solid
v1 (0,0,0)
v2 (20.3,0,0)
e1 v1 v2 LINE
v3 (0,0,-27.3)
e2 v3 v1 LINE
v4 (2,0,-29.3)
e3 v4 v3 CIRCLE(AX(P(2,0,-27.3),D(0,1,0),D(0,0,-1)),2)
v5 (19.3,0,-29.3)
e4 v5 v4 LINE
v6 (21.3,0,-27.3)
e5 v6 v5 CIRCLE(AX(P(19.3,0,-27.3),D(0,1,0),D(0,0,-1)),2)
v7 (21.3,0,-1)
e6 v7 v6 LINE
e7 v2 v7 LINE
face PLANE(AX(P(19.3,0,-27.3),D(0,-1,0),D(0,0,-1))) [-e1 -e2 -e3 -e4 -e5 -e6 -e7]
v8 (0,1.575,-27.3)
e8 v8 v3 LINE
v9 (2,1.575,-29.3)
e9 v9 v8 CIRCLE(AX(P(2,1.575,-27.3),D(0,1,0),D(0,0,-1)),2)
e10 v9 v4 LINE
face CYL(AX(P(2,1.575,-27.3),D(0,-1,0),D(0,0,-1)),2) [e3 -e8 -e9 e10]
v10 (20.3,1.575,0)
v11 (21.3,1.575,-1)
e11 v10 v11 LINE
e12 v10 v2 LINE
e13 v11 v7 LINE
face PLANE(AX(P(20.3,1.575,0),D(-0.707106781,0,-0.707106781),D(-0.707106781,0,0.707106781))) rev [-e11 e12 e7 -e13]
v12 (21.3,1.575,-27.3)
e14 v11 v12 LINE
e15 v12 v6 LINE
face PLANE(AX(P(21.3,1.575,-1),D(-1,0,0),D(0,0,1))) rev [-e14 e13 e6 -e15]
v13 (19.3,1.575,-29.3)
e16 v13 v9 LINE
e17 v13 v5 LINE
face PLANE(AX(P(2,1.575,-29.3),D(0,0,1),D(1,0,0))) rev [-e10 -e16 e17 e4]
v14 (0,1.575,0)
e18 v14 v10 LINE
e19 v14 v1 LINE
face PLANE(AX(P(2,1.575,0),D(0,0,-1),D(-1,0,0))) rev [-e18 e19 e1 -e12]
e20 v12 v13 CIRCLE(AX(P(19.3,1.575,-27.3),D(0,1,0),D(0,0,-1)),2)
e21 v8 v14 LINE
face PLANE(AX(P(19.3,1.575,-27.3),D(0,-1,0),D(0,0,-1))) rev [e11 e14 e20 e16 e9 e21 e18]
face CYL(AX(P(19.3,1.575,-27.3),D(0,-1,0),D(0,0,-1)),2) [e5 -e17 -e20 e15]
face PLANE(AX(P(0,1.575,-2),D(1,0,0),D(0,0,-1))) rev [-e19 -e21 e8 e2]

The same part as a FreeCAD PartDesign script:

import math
import FreeCAD as App
import Part
import Sketcher

V = App.Vector
Q = App.Units.Quantity

doc = App.newDocument("Part")
body = doc.addObject("PartDesign::Body", "Body")

# Sketch on XZ plane
sketch1 = body.newObject("Sketcher::SketchObject", "Sketch")
sketch1.AttachmentSupport = (doc.getObject("XZ_Plane"), [""])
sketch1.MapMode = "FlatFace"
sketch1.addGeometry([
    Part.LineSegment(V(0, 0, 0), V(20.3, 0, 0)),  # 0
    Part.LineSegment(V(20.3, 0, 0), V(21.3, -1, 0)),  # 1
    Part.LineSegment(V(21.3, -1, 0), V(21.3, -27.3, 0)),  # 2
    Part.ArcOfCircle(Part.Circle(V(19.3, -27.3, 0), V(0, 0, 1), 2), math.radians(-90), math.radians(0)),  # 3
    Part.LineSegment(V(19.3, -29.3, 0), V(2, -29.3, 0)),  # 4
    Part.ArcOfCircle(Part.Circle(V(2, -27.3, 0), V(0, 0, 1), 2), math.radians(-180), math.radians(-90)),  # 5
    Part.LineSegment(V(0, -27.3, 0), V(0, 0, 0)),  # 6
], False)
sketch1.addConstraint([
    Sketcher.Constraint("Coincident", 0, 2, 1, 1),
    Sketcher.Constraint("Coincident", 1, 2, 2, 1),
    Sketcher.Constraint("Tangent", 2, 2, 3, 2),
    Sketcher.Constraint("Tangent", 3, 1, 4, 1),
    Sketcher.Constraint("Tangent", 4, 2, 5, 2),
    Sketcher.Constraint("Tangent", 5, 1, 6, 1),
    Sketcher.Constraint("Coincident", 6, 2, 0, 1),
    Sketcher.Constraint("Horizontal", 0),
    Sketcher.Constraint("Vertical", 2),
    Sketcher.Constraint("Horizontal", 4),
    Sketcher.Constraint("Vertical", 6),
    Sketcher.Constraint("Coincident", 6, 2, -1, 1),
    Sketcher.Constraint("Equal", 3, 5),
    Sketcher.Constraint("Radius", 3, Q("2 mm")),
    Sketcher.Constraint("Angle", 1, Q("-45 deg")),
    Sketcher.Constraint("DistanceX", 0, 1, 0, 2, Q("20.3 mm")),
    Sketcher.Constraint("DistanceX", 4, 2, 4, 1, Q("17.3 mm")),
    Sketcher.Constraint("DistanceY", 2, 2, 2, 1, Q("26.3 mm")),
])
pad1 = body.newObject("PartDesign::Pad", "Pad")
pad1.Profile = sketch1
pad1.Length = 1.575
pad1.Reversed = True

doc.recompute()
